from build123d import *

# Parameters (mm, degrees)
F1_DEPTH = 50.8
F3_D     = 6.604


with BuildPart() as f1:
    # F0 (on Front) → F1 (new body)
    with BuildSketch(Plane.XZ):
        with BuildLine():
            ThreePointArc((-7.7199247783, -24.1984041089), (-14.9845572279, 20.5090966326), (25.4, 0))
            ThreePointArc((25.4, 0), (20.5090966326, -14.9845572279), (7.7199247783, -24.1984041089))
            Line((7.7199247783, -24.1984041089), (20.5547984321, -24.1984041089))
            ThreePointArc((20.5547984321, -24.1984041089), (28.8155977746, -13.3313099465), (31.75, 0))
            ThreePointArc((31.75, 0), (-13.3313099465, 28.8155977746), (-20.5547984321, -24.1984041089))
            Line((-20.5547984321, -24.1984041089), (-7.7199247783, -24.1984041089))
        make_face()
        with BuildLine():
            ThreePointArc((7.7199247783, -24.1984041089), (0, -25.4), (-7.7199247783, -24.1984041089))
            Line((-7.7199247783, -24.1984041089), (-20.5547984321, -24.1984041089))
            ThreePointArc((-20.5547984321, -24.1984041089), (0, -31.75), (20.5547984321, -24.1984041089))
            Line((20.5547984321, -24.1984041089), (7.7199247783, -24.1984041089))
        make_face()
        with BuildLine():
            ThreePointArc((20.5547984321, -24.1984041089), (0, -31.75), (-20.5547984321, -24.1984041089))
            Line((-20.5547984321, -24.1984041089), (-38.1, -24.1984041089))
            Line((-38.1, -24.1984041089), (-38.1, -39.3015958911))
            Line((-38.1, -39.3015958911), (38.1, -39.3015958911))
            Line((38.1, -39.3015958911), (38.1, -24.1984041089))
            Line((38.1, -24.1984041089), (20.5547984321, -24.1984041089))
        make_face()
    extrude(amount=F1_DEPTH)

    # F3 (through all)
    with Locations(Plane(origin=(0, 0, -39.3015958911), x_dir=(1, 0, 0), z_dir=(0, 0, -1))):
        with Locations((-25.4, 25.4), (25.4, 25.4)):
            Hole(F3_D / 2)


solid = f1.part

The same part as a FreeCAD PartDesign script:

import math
import FreeCAD as App
import Part
import Sketcher

V = App.Vector
Q = App.Units.Quantity

doc = App.newDocument("Part")
body = doc.addObject("PartDesign::Body", "Body")

# Sketch on XZ plane
sketch1 = doc.addObject("Sketcher::SketchObject", "Sketch")
body.addObject(sketch1)
sketch1.AttachmentSupport = (doc.XZ_Plane, [""])
sketch1.MapMode = "FlatFace"
sketch1.addGeometry([
    Part.ArcOfCircle(Part.Circle(V(0, 0, 0), V(0, 0, 1), 32), math.radians(-50), math.radians(0)),  # 0
    Part.ArcOfCircle(Part.Circle(V(0, 0, 0), V(0, 0, 1), 32), math.radians(0), math.radians(230)),  # 1
    Part.LineSegment(V(-21, -24, 0), V(-38, -24, 0)),  # 2
    Part.LineSegment(V(-38, -24, 0), V(-38, -39, 0)),  # 3
    Part.LineSegment(V(-38, -39, 0), V(38, -39, 0)),  # 4
    Part.LineSegment(V(38, -39, 0), V(38, -24, 0)),  # 5
    Part.LineSegment(V(38, -24, 0), V(21, -24, 0)),  # 6
    Part.ArcOfCircle(Part.Circle(V(0, 0, 0), V(0, 0, 1), 25), math.radians(-72), math.radians(0)),  # 7
    Part.ArcOfCircle(Part.Circle(V(0, 0, 0), V(0, 0, 1), 25), math.radians(0), math.radians(288)),  # 8
], False)
sketch1.addConstraint([
    Sketcher.Constraint("Tangent", 0, 2, 1, 1),
    Sketcher.Constraint("Coincident", 1, 2, 2, 1),
    Sketcher.Constraint("Coincident", 2, 2, 3, 1),
    Sketcher.Constraint("Coincident", 3, 2, 4, 1),
    Sketcher.Constraint("Coincident", 4, 2, 5, 1),
    Sketcher.Constraint("Coincident", 5, 2, 6, 1),
    Sketcher.Constraint("Coincident", 6, 2, 0, 1),
    Sketcher.Constraint("Tangent", 7, 1, 8, 2),
    Sketcher.Constraint("Coincident", 8, 1, 7, 2),
    Sketcher.Constraint("Horizontal", 2),
    Sketcher.Constraint("Vertical", 3),
    Sketcher.Constraint("Horizontal", 4),
    Sketcher.Constraint("Vertical", 5),
    Sketcher.Constraint("Horizontal", 6),
    Sketcher.Constraint("Coincident", 0, 3, -1, 1),
    Sketcher.Constraint("Coincident", 7, 3, -1, 1),
    Sketcher.Constraint("Equal", 0, 1),
    Sketcher.Constraint("Symmetric", 2, 2, 5, 2, -2),
    Sketcher.Constraint("PointOnObject", 0, 2, -1),
    Sketcher.Constraint("PointOnObject", 8, 1, -1),
    Sketcher.Constraint("Horizontal", 6, 2, 7, 1),
    Sketcher.Constraint("Radius", 7, Q("1 in")),
    Sketcher.Constraint("DistanceX", 4, 1, 4, 2, Q("3 in")),
    Sketcher.Constraint("Radius", 0, Q("1.25 in")),
    Sketcher.Constraint("DistanceX", 2, 2, 2, 1, 17.545202),
    Sketcher.Constraint("DistanceY", 3, 2, 3, 1, 15.103192),
])
pad1 = doc.addObject("PartDesign::Pad", "Pad")
body.addObject(pad1)
pad1.Profile = sketch1
pad1.Length = Q("2 in")

# Sketch on XY plane
sketch2 = doc.addObject("Sketcher::SketchObject", "Sketch001")
body.addObject(sketch2)
sketch2.AttachmentSupport = (doc.XY_Plane, [""])
sketch2.MapMode = "FlatFace"
sketch2.AttachmentOffset = App.Placement(V(0, 0, -39.301596), App.Rotation())
sketch2.addGeometry([
    Part.Circle(V(-25.4, -25.4, 0), V(0, 0, 1), 3.3),
    Part.Circle(V(25.4, -25.4, 0), V(0, 0, 1), 3.3),
], False)
sketch2.addConstraint([
    Sketcher.Constraint("Equal", 0, 1),
    Sketcher.Constraint("Symmetric", 0, 3, 1, 3, -2),
    Sketcher.Constraint("Diameter", 0, Q("0.26 in")),
    Sketcher.Constraint("DistanceX", 0, 3, -1, 1, Q("1 in")),
    Sketcher.Constraint("DistanceY", 0, 3, -1, 1, Q("1 in")),
])
doc.recompute()
hole = doc.addObject("PartDesign::Hole", "Hole")
body.addObject(hole)
hole.Profile = sketch2
hole.ThreadType = "None"
hole.Diameter = Q("0.26 in")
hole.DepthType = "ThroughAll"
hole.Reversed = True

doc.recompute()
